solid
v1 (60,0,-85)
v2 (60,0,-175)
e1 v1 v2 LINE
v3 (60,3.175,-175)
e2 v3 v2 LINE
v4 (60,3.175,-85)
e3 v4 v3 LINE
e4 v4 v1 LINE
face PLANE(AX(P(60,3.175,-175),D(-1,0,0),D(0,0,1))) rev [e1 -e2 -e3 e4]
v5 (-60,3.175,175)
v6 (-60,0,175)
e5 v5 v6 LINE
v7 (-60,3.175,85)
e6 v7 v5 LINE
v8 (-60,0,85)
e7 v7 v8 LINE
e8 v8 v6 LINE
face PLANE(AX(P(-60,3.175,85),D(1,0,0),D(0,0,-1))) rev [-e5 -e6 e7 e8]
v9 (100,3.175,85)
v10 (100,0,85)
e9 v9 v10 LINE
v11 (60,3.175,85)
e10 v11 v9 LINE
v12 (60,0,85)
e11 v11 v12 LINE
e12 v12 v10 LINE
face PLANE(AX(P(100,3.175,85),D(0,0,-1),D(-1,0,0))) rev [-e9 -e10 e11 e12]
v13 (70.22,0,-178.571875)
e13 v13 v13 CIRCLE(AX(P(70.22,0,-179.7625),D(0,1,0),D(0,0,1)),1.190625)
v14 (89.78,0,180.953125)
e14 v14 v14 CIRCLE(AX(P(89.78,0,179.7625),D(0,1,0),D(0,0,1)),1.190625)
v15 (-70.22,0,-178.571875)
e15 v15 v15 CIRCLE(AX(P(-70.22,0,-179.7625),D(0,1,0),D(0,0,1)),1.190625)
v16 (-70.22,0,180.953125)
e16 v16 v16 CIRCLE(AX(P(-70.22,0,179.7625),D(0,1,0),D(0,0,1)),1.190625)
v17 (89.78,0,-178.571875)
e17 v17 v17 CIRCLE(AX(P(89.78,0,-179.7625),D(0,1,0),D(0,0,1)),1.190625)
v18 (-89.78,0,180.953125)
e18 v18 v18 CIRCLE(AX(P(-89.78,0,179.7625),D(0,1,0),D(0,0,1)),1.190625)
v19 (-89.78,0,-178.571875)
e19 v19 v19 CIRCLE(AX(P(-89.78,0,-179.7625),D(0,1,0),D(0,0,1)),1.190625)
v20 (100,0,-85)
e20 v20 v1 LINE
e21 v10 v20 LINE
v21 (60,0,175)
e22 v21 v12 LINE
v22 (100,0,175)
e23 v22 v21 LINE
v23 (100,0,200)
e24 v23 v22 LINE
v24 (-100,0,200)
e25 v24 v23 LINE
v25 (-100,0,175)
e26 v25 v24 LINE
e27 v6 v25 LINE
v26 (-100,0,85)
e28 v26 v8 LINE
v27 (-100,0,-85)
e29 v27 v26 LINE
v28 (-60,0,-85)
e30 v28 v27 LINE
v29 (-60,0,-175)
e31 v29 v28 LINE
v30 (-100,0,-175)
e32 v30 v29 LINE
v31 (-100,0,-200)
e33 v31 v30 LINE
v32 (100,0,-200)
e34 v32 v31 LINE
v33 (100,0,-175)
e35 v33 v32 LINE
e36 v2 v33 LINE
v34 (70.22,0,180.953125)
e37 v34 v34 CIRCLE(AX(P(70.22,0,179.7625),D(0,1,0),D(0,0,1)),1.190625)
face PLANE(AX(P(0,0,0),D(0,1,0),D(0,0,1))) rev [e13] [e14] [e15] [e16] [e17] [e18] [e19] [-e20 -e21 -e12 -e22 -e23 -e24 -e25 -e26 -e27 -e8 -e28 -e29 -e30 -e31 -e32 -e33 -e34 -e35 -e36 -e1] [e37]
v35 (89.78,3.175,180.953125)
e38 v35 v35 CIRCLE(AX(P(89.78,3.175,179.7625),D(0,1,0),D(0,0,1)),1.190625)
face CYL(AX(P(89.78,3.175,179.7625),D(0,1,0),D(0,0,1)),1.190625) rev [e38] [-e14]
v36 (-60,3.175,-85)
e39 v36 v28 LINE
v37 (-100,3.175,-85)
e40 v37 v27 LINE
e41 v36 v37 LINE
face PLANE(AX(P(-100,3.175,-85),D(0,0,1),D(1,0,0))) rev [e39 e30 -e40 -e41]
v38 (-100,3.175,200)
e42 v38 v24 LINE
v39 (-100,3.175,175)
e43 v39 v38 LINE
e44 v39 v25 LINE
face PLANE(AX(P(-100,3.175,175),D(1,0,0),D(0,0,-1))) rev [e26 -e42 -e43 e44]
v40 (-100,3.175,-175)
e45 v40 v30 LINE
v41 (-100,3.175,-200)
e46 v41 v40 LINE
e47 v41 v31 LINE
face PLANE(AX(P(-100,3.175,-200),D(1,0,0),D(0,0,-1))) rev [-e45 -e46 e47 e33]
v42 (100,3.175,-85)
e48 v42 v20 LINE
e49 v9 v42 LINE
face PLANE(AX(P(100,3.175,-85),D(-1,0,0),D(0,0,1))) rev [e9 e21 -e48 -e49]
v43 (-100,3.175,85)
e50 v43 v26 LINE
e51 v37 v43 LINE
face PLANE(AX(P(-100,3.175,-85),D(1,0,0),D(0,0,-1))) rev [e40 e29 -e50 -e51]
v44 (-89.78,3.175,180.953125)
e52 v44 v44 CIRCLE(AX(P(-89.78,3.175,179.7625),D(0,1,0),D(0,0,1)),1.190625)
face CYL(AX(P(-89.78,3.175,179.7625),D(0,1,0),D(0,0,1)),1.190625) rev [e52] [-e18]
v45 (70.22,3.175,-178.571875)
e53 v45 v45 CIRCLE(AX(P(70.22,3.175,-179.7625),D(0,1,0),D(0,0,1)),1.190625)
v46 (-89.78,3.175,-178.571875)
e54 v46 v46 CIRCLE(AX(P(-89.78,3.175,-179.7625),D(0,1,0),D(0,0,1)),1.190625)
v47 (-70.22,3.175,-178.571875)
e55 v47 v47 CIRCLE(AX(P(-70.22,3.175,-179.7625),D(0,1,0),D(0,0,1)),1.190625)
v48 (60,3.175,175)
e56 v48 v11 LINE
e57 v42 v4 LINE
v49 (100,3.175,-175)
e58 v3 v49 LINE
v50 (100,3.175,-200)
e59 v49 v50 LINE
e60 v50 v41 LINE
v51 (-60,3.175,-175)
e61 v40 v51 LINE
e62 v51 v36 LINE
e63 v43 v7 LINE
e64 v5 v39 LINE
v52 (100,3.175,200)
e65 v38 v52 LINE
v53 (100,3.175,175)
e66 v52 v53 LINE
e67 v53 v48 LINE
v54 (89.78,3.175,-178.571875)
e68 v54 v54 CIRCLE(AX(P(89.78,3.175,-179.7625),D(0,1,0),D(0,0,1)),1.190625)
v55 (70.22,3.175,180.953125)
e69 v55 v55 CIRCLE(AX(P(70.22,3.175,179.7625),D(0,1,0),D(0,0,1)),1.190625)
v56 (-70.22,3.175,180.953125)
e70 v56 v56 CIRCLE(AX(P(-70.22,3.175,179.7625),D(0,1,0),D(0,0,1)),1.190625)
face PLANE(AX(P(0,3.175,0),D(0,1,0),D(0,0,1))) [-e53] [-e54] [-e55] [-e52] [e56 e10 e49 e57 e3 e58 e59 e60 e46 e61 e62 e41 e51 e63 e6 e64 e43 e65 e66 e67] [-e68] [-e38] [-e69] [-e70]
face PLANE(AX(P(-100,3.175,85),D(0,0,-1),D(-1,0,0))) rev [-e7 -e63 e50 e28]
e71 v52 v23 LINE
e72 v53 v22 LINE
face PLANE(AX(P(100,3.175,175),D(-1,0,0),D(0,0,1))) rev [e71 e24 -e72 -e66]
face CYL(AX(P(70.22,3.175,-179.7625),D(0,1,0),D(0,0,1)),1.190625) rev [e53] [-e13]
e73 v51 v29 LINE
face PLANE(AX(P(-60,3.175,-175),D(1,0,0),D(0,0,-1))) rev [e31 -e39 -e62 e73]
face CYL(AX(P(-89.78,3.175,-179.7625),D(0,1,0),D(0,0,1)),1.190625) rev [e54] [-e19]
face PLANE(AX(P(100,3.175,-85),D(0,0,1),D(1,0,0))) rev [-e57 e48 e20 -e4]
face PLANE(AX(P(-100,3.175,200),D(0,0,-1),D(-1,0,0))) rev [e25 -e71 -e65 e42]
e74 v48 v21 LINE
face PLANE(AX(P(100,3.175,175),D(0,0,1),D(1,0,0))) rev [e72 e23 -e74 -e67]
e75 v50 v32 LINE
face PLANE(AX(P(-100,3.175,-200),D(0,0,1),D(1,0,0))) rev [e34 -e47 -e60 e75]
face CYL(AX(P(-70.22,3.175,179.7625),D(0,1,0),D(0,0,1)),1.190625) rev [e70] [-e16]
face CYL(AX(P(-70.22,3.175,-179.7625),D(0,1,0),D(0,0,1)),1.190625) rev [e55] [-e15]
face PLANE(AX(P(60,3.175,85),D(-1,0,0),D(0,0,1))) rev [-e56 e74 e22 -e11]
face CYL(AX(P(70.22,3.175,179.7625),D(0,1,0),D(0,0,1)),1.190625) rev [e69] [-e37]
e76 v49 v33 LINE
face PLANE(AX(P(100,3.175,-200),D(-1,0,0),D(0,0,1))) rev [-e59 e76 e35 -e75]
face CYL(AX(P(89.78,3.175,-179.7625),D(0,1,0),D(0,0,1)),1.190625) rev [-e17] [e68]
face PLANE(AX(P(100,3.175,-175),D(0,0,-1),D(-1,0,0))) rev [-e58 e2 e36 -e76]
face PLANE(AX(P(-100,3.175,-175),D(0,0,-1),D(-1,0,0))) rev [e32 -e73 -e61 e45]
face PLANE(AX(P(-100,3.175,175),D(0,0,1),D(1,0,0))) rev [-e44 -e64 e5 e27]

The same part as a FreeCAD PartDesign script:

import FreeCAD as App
import Part
import Sketcher
from FreeCAD import Vector
Q = App.Units.Quantity

doc = App.newDocument("Part")
body = doc.addObject("PartDesign::Body", "Body")

sketch1 = body.newObject("Sketcher::SketchObject", "Sketch")
sketch1.AttachmentSupport = (doc.getObject("XZ_Plane"), [""])
sketch1.MapMode = "FlatFace"
sketch1.addGeometry([
    Part.LineSegment(Vector(-100, -85, 0), Vector(-100, 85, 0)),
    Part.LineSegment(Vector(-100, 85, 0), Vector(-60, 85, 0)),
    Part.LineSegment(Vector(-60, 85, 0), Vector(-60, 175, 0)),
    Part.LineSegment(Vector(-60, 175, 0), Vector(-100, 175, 0)),
    Part.LineSegment(Vector(-100, 175, 0), Vector(-100, 200, 0)),
    Part.LineSegment(Vector(-100, 200, 0), Vector(100, 200, 0)),
    Part.LineSegment(Vector(100, 200, 0), Vector(100, 175, 0)),
    Part.LineSegment(Vector(100, 175, 0), Vector(60, 175, 0)),
    Part.LineSegment(Vector(60, 175, 0), Vector(60, 85, 0)),
    Part.LineSegment(Vector(60, 85, 0), Vector(100, 85, 0)),
    Part.LineSegment(Vector(100, 85, 0), Vector(100, -85, 0)),
    Part.LineSegment(Vector(100, -85, 0), Vector(60, -85, 0)),
    Part.LineSegment(Vector(60, -85, 0), Vector(60, -175, 0)),
    Part.LineSegment(Vector(60, -175, 0), Vector(100, -175, 0)),
    Part.LineSegment(Vector(100, -175, 0), Vector(100, -200, 0)),
    Part.LineSegment(Vector(100, -200, 0), Vector(-100, -200, 0)),
    Part.LineSegment(Vector(-100, -200, 0), Vector(-100, -175, 0)),
    Part.LineSegment(Vector(-100, -175, 0), Vector(-60, -175, 0)),
    Part.LineSegment(Vector(-60, -175, 0), Vector(-60, -85, 0)),
    Part.LineSegment(Vector(-60, -85, 0), Vector(-100, -85, 0)),
], False)
sketch1.addConstraint([
    Sketcher.Constraint("Coincident", 0, 2, 1, 1),
    Sketcher.Constraint("Coincident", 1, 2, 2, 1),
    Sketcher.Constraint("Coincident", 2, 2, 3, 1),
    Sketcher.Constraint("Coincident", 3, 2, 4, 1),
    Sketcher.Constraint("Coincident", 4, 2, 5, 1),
    Sketcher.Constraint("Coincident", 5, 2, 6, 1),
    Sketcher.Constraint("Coincident", 6, 2, 7, 1),
    Sketcher.Constraint("Coincident", 7, 2, 8, 1),
    Sketcher.Constraint("Coincident", 8, 2, 9, 1),
    Sketcher.Constraint("Coincident", 9, 2, 10, 1),
    Sketcher.Constraint("Coincident", 10, 2, 11, 1),
    Sketcher.Constraint("Coincident", 11, 2, 12, 1),
    Sketcher.Constraint("Coincident", 12, 2, 13, 1),
    Sketcher.Constraint("Coincident", 13, 2, 14, 1),
    Sketcher.Constraint("Coincident", 14, 2, 15, 1),
    Sketcher.Constraint("Coincident", 15, 2, 16, 1),
    Sketcher.Constraint("Coincident", 16, 2, 17, 1),
    Sketcher.Constraint("Coincident", 17, 2, 18, 1),
    Sketcher.Constraint("Coincident", 18, 2, 19, 1),
    Sketcher.Constraint("Coincident", 19, 2, 0, 1),
    Sketcher.Constraint("Vertical", 0),
    Sketcher.Constraint("Horizontal", 1),
    Sketcher.Constraint("Vertical", 2),
    Sketcher.Constraint("Horizontal", 3),
    Sketcher.Constraint("Vertical", 4),
    Sketcher.Constraint("Horizontal", 5),
    Sketcher.Constraint("Vertical", 6),
    Sketcher.Constraint("Horizontal", 7),
    Sketcher.Constraint("Vertical", 8),
    Sketcher.Constraint("Horizontal", 9),
    Sketcher.Constraint("Vertical", 10),
    Sketcher.Constraint("Horizontal", 11),
    Sketcher.Constraint("Vertical", 12),
    Sketcher.Constraint("Horizontal", 13),
    Sketcher.Constraint("Vertical", 14),
    Sketcher.Constraint("Horizontal", 15),
    Sketcher.Constraint("Vertical", 16),
    Sketcher.Constraint("Horizontal", 17),
    Sketcher.Constraint("Vertical", 18),
    Sketcher.Constraint("Horizontal", 19),
    Sketcher.Constraint("Symmetric", 0, 2, 10, 2, -1, 1),
    Sketcher.Constraint("Symmetric", 2, 2, 12, 2, -1, 1),
    Sketcher.Constraint("Symmetric", 4, 2, 14, 2, -1, 1),
    Sketcher.Constraint("Symmetric", 6, 2, 16, 2, -1, 1),
    Sketcher.Constraint("Symmetric", 8, 2, 18, 2, -1, 1),
    Sketcher.Constraint("Symmetric", 3, 2, 6, 2, -2),
    Sketcher.Constraint("Symmetric", 1, 2, 8, 2, -2),
    Sketcher.Constraint("Vertical", 0, 2, 3, 2),
    Sketcher.Constraint("DistanceX", 1, 1, 1, 2, Q("40 mm")),
    Sketcher.Constraint("DistanceX", 5, 1, 5, 2, Q("200 mm")),
    Sketcher.Constraint("DistanceY", 0, 1, 0, 2, Q("170 mm")),
    Sketcher.Constraint("DistanceY", 2, 1, 2, 2, Q("90 mm")),
    Sketcher.Constraint("DistanceY", 4, 1, 4, 2, Q("25 mm")),
])
pad1 = body.newObject("PartDesign::Pad", "Pad")
pad1.Profile = sketch1
pad1.Length = 3.175
pad1.Reversed = True

sketch2 = body.newObject("Sketcher::SketchObject", "Sketch001")
sketch2.AttachmentSupport = (doc.getObject("XZ_Plane"), [""])
sketch2.MapMode = "FlatFace"
sketch2.AttachmentOffset = App.Placement(Vector(0, 0, -3.175), App.Rotation())
sketch2.addGeometry([
    Part.Circle(Vector(-89.8, -179.8, 0), Vector(0, 0, 1), 1.2),
    Part.Circle(Vector(-70.2, -179.8, 0), Vector(0, 0, 1), 1.2),
], False)
sketch2.addConstraint([
    Sketcher.Constraint("Equal", 0, 1),
    Sketcher.Constraint("Horizontal", 0, 3, 1, 3),
    Sketcher.Constraint("Diameter", 0, Q("2.38125 mm")),
    Sketcher.Constraint("DistanceX", 0, 3, -1, 1, Q("89.78 mm")),
    Sketcher.Constraint("DistanceX", 1, 3, -1, 1, Q("70.22 mm")),
    Sketcher.Constraint("DistanceY", 0, 3, -1, 1, Q("179.7625 mm")),
])
doc.recompute()
hole = body.newObject("PartDesign::Hole", "Hole")
hole.Profile = sketch2
hole.ThreadType = "None"
hole.Diameter = 2.38125
hole.DepthType = "ThroughAll"
hole.Reversed = True
doc.recompute()

mirrored = body.newObject("PartDesign::Mirrored", "Mirrored")
mirrored.Originals = [hole]
mirrored.MirrorPlane = (doc.getObject("YZ_Plane"), [""])
body.Tip = mirrored
doc.recompute()

mirrored2 = body.newObject("PartDesign::Mirrored", "Mirrored001")
mirrored2.Originals = [hole]
mirrored2.MirrorPlane = (doc.getObject("XY_Plane"), [""])
body.Tip = mirrored2

sketch3 = body.newObject("Sketcher::SketchObject", "Sketch002")
sketch3.AttachmentSupport = (doc.getObject("XZ_Plane"), [""])
sketch3.MapMode = "FlatFace"
sketch3.AttachmentOffset = App.Placement(Vector(0, 0, -3.175), App.Rotation())
sketch3.addGeometry([
    Part.Circle(Vector(89.8, 179.8, 0), Vector(0, 0, 1), 1.2),
    Part.Circle(Vector(70.2, 179.8, 0), Vector(0, 0, 1), 1.2),
], False)
sketch3.addConstraint([
    Sketcher.Constraint("Equal", 0, 1),
    Sketcher.Constraint("Horizontal", 0, 3, 1, 3),
    Sketcher.Constraint("Diameter", 0, Q("2.38125 mm")),
    Sketcher.Constraint("DistanceX", -1, 1, 0, 3, Q("89.78 mm")),
    Sketcher.Constraint("DistanceX", -1, 1, 1, 3, Q("70.22 mm")),
    Sketcher.Constraint("DistanceY", -1, 1, 0, 3, Q("179.7625 mm")),
])
doc.recompute()
hole2 = body.newObject("PartDesign::Hole", "Hole001")
hole2.Profile = sketch3
hole2.ThreadType = "None"
hole2.Diameter = 2.38125
hole2.DepthType = "ThroughAll"
hole2.Reversed = True

doc.recompute()
